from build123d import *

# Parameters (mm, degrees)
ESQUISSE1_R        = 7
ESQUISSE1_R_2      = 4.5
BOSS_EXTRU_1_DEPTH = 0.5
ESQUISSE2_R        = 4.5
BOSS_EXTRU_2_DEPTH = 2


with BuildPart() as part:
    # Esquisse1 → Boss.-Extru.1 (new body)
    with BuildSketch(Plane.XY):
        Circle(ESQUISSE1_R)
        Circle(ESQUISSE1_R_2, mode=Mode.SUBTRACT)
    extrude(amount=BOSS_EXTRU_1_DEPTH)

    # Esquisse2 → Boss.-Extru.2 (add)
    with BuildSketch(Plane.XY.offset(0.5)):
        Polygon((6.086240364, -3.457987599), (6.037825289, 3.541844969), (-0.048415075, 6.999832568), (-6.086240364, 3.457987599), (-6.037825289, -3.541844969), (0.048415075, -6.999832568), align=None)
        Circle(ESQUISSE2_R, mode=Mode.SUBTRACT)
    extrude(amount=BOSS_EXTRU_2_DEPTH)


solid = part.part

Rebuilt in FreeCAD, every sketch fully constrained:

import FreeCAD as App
import Part
import Sketcher
Q = App.Units.Quantity


def add_polygon(sketch, points):
    """Adds a closed chain of lines whose ends are joined by coincident constraints."""
    first, n = sketch.GeometryCount, len(points)
    for a, b in zip(points, points[1:] + points[:1]):
        sketch.addGeometry(Part.LineSegment(App.Vector(*a, 0), App.Vector(*b, 0)), False)
    for i in range(n):
        sketch.addConstraint(Sketcher.Constraint("Coincident", first + i, 2, first + (i + 1) % n, 1))

doc = App.newDocument("Part")
body = doc.addObject("PartDesign::Body", "Body")

sketch1 = body.newObject("Sketcher::SketchObject", "Sketch")
sketch1.AttachmentSupport = (doc.getObject("XY_Plane"), [""])
sketch1.MapMode = "FlatFace"
sketch1.addGeometry([
    Part.Circle(App.Vector(0, 0, 0), App.Vector(0, 0, 1), 7),
    Part.Circle(App.Vector(0, 0, 0), App.Vector(0, 0, 1), 4.5),
], False)
sketch1.addConstraint([
    Sketcher.Constraint("Coincident", 0, 3, -1, 1),
    Sketcher.Constraint("Coincident", 1, 3, -1, 1),
    Sketcher.Constraint("Diameter", 0, Q("14 mm")),
    Sketcher.Constraint("Diameter", 1, Q("9 mm")),
])
pad1 = body.newObject("PartDesign::Pad", "Pad")
pad1.Profile = sketch1
pad1.Length = 0.5

sketch2 = body.newObject("Sketcher::SketchObject", "Sketch001")
sketch2.AttachmentSupport = (doc.getObject("XY_Plane"), [""])
sketch2.MapMode = "FlatFace"
sketch2.AttachmentOffset = App.Placement(App.Vector(0, 0, 0.5), App.Rotation())
add_polygon(sketch2, [(6.1, -3.5), (6, 3.5), (0, 7), (-6.1, 3.5), (-6, -3.5), (0, -7)])
sketch2.addGeometry(Part.Circle(App.Vector(0, 0, 0), App.Vector(0, 0, 1), 4.5), False)
sketch2.addConstraint([
    Sketcher.Constraint("Coincident", 6, 3, -1, 1),
    Sketcher.Constraint("Symmetric", 0, 2, 3, 2, -1, 1),
    Sketcher.Constraint("Symmetric", 1, 2, 4, 2, -1, 1),
    Sketcher.Constraint("Symmetric", 2, 2, 5, 2, -1, 1),
    Sketcher.Constraint("Equal", 0, 1),
    Sketcher.Constraint("Equal", 1, 2),
    Sketcher.Constraint("Diameter", 6, Q("9 mm")),
    Sketcher.Constraint("Distance", 0, Q("7 mm")),
    Sketcher.Constraint("DistanceX", 2, 2, -1, 1, Q("6.08624 mm")),
    Sketcher.Constraint("DistanceX", 1, 2, 0, 2, Q("6.08624 mm")),
    Sketcher.Constraint("DistanceX", 3, 2, 1, 2, Q("5.98941 mm")),
])
pad2 = body.newObject("PartDesign::Pad", "Pad001")
pad2.Profile = sketch2
pad2.Length = 2

doc.recompute()
